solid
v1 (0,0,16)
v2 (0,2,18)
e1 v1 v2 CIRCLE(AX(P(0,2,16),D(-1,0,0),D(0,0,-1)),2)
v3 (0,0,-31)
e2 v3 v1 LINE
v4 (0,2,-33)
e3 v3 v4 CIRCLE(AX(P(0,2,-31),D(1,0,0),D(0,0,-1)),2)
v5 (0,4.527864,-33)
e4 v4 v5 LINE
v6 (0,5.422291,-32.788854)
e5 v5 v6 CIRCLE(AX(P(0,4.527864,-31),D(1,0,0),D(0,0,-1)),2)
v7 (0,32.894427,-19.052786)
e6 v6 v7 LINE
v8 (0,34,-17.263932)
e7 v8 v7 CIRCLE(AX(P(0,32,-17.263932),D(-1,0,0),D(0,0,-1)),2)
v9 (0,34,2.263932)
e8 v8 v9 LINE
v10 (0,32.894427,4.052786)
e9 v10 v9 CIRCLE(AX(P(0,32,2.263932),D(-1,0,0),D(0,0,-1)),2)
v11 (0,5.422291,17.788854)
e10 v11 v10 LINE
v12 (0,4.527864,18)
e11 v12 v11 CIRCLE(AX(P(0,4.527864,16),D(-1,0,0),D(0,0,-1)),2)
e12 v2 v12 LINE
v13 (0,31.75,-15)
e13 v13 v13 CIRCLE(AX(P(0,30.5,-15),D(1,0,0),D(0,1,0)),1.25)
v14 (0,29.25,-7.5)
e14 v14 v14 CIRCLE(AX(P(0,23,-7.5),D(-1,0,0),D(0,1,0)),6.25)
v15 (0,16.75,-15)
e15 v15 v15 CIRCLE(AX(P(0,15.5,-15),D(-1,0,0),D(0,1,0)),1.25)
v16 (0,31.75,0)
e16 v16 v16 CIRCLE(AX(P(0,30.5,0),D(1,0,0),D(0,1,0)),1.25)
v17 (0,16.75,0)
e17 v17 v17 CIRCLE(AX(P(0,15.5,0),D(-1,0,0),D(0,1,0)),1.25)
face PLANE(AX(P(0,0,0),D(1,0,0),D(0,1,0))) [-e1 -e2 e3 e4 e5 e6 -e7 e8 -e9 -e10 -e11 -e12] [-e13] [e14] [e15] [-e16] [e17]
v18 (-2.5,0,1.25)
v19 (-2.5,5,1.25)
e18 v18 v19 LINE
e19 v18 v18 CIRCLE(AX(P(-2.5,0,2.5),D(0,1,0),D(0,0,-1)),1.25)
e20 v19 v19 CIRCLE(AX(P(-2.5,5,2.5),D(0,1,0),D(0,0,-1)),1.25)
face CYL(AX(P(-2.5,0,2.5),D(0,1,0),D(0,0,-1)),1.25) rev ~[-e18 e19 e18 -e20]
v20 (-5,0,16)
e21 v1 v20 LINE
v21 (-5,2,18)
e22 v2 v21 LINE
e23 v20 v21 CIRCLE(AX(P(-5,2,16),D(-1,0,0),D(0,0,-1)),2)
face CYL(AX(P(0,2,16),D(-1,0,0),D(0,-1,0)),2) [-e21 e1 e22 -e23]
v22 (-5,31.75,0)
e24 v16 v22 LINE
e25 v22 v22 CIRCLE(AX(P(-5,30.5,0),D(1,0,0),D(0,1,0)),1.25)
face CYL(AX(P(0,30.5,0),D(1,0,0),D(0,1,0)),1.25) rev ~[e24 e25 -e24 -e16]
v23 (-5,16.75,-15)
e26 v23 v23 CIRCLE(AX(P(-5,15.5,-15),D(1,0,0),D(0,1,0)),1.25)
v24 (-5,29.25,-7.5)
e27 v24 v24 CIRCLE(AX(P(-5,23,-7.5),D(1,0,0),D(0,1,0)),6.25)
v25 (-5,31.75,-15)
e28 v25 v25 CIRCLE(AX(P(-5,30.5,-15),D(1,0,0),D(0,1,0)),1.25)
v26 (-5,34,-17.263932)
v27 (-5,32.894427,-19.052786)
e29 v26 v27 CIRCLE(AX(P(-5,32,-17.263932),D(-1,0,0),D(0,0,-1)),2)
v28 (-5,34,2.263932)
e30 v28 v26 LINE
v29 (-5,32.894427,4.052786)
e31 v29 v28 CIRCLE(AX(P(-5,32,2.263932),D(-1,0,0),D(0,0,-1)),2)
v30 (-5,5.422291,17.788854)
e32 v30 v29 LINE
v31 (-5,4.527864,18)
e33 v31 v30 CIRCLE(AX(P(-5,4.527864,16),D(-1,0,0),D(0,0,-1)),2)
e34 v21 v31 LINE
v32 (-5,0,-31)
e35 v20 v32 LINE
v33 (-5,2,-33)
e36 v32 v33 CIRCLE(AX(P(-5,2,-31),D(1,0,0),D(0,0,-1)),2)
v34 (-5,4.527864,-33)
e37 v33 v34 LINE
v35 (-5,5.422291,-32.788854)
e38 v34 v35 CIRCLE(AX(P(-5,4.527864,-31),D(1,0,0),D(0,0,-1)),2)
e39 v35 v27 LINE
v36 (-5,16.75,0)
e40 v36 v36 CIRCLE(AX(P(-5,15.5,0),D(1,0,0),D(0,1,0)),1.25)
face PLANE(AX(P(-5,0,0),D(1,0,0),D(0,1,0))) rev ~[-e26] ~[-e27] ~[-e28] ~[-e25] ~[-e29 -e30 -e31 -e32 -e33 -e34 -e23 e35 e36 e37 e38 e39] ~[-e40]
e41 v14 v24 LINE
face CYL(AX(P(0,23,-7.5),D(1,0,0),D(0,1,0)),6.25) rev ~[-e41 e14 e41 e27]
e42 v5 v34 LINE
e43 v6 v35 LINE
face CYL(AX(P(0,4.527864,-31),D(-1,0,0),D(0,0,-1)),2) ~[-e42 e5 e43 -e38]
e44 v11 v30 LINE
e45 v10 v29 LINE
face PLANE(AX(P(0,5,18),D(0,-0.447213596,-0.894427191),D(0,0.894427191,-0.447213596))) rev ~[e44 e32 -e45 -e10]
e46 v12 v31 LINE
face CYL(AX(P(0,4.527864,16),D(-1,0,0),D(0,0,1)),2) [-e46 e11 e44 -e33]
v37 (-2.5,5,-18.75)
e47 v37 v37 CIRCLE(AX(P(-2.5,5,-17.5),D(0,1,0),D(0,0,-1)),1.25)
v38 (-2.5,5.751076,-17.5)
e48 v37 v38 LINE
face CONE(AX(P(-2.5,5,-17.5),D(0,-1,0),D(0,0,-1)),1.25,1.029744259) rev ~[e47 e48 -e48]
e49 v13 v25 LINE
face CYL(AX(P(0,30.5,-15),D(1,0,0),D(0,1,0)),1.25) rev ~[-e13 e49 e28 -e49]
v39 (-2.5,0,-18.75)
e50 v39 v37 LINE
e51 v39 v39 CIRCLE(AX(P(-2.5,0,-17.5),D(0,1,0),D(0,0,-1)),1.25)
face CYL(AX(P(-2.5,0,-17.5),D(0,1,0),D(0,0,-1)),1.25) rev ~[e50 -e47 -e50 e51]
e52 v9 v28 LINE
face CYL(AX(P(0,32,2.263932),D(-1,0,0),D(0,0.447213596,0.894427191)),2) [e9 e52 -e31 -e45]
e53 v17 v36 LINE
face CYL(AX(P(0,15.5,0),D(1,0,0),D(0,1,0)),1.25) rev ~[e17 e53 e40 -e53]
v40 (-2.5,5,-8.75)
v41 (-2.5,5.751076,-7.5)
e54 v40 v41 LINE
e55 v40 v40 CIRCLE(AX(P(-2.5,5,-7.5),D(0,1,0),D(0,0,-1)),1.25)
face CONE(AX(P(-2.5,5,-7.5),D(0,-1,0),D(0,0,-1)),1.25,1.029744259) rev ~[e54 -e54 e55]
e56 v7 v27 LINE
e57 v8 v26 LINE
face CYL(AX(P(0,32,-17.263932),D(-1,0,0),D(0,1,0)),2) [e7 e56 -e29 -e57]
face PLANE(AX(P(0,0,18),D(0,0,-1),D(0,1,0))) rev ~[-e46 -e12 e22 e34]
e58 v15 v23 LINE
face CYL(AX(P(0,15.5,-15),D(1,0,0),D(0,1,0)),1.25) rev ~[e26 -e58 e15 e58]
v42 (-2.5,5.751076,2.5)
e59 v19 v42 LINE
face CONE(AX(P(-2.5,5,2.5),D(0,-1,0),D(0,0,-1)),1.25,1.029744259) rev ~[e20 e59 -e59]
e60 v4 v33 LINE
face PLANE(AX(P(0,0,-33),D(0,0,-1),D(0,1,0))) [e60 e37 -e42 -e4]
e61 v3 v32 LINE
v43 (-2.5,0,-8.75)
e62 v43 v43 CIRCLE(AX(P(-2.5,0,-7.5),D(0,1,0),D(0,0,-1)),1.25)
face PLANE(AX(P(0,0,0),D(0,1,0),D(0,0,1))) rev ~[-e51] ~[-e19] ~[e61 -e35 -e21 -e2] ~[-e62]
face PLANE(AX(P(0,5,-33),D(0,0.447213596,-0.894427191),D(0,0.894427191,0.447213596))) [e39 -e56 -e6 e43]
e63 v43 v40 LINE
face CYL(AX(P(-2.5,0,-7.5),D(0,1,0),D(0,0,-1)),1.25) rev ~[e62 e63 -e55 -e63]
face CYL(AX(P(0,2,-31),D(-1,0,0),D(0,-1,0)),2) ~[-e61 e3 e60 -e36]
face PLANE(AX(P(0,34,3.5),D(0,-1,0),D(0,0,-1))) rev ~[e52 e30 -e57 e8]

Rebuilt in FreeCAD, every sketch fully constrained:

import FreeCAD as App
import Part
import Sketcher
Q = App.Units.Quantity


def edges_at(feature, points):
    """Names of the edges that pass closest to the given points."""
    edges = feature.Shape.Edges
    near = lambda p: min(range(len(edges)), key=lambda i: edges[i].distToShape(Part.Vertex(*p))[0])
    return sorted({f"Edge{near(p) + 1}" for p in points})


def add_polygon(sketch, points):
    """Adds a closed chain of lines whose ends are joined by coincident constraints."""
    first, n = sketch.GeometryCount, len(points)
    for a, b in zip(points, points[1:] + points[:1]):
        sketch.addGeometry(Part.LineSegment(App.Vector(*a, 0), App.Vector(*b, 0)), False)
    for i in range(n):
        sketch.addConstraint(Sketcher.Constraint("Coincident", first + i, 2, first + (i + 1) % n, 1))

doc = App.newDocument("Part")
body = doc.addObject("PartDesign::Body", "Body")

# Sketch on YZ plane
sketch1 = doc.addObject("Sketcher::SketchObject", "Sketch")
body.addObject(sketch1)
sketch1.AttachmentSupport = (doc.YZ_Plane, [""])
sketch1.MapMode = "FlatFace"
add_polygon(sketch1, [(0, 18), (0, -33), (5, -33), (34, -18.5), (34, 3.5), (5, 18)])  # lines 0-5
sketch1.addGeometry(Part.Circle(App.Vector(23, -7.5, 0), App.Vector(0, 0, 1), 6.2), False)  # 6
sketch1.addGeometry(Part.Circle(App.Vector(30.5, 0, 0), App.Vector(0, 0, 1), 1.2), False)  # 7
sketch1.addGeometry(Part.Circle(App.Vector(15.5, 0, 0), App.Vector(0, 0, 1), 1.2), False)  # 8
sketch1.addGeometry(Part.Circle(App.Vector(30.5, -15, 0), App.Vector(0, 0, 1), 1.2), False)  # 9
sketch1.addGeometry(Part.Circle(App.Vector(15.5, -15, 0), App.Vector(0, 0, 1), 1.2), False)  # 10
sketch1.addConstraint([
    Sketcher.Constraint("Vertical", 0),
    Sketcher.Constraint("Horizontal", 1),
    Sketcher.Constraint("Vertical", 3),
    Sketcher.Constraint("Horizontal", 5),
    Sketcher.Constraint("Equal", 7, 8),
    Sketcher.Constraint("Equal", 8, 9),
    Sketcher.Constraint("Equal", 9, 10),
    Sketcher.Constraint("PointOnObject", 7, 3, -1),
    Sketcher.Constraint("PointOnObject", 8, 3, -1),
    Sketcher.Constraint("PointOnObject", 0, 2, -2),
    Sketcher.Constraint("Horizontal", 9, 3, 10, 3),
    Sketcher.Constraint("Vertical", 7, 3, 9, 3),
    Sketcher.Constraint("Vertical", 8, 3, 10, 3),
    Sketcher.Constraint("Vertical", 1, 2, 4, 2),
    Sketcher.Constraint("Equal", 2, 4),
    Sketcher.Constraint("Diameter", 6, Q("12.5 mm")),
    Sketcher.Constraint("Diameter", 7, Q("2.5 mm")),
    Sketcher.Constraint("DistanceX", 1, 1, 1, 2, Q("5 mm")),
    Sketcher.Constraint("DistanceY", 0, 2, 0, 1, Q("51 mm")),
    Sketcher.Constraint("DistanceY", 3, 1, 3, 2, Q("22 mm")),
    Sketcher.Constraint("DistanceY", 9, 3, -1, 1, Q("15 mm")),
    Sketcher.Constraint("DistanceY", -1, 1, 4, 2, Q("18 mm")),
    Sketcher.Constraint("DistanceX", 8, 3, 7, 3, Q("15 mm")),
    Sketcher.Constraint("DistanceX", 1, 2, 6, 3, Q("18 mm")),
    Sketcher.Constraint("DistanceX", 9, 3, 2, 2, Q("3.5 mm")),
    Sketcher.Constraint("DistanceX", -1, 1, 2, 2, Q("34 mm")),
    Sketcher.Constraint("DistanceY", 2, 2, 6, 3, Q("11 mm")),
])
pad1 = doc.addObject("PartDesign::Pad", "Pad")
body.addObject(pad1)
pad1.Profile = sketch1
pad1.Length = 5
pad1.Reversed = True
doc.recompute()

fillet = doc.addObject("PartDesign::Fillet", "Fillet")
body.addObject(fillet)
fillet.Base = (pad1, edges_at(pad1, [
    (-2.5, 0, -33),
    (-2.5, 5, -33),
    (-2.5, 34, -18.5),
    (-2.5, 34, 3.5),
    (-2.5, 0, 18),
    (-2.5, 5, 18),
]))
fillet.Radius = 2

# Sketch on XZ plane
sketch2 = doc.addObject("Sketcher::SketchObject", "Sketch001")
body.addObject(sketch2)
sketch2.AttachmentSupport = (doc.XZ_Plane, [""])
sketch2.MapMode = "FlatFace"
sketch2.addGeometry([
    Part.Circle(App.Vector(-2.5, 2.5, 0), App.Vector(0, 0, 1), 1.2),
    Part.Circle(App.Vector(-2.5, -7.5, 0), App.Vector(0, 0, 1), 1.2),
    Part.Circle(App.Vector(-2.5, -17.5, 0), App.Vector(0, 0, 1), 1.2),
], False)
sketch2.addConstraint([
    Sketcher.Constraint("Equal", 0, 1),
    Sketcher.Constraint("Equal", 1, 2),
    Sketcher.Constraint("Vertical", 0, 3, 1, 3),
    Sketcher.Constraint("Vertical", 1, 3, 2, 3),
    Sketcher.Constraint("Diameter", 0, Q("2.5 mm")),
    Sketcher.Constraint("DistanceY", 1, 3, 0, 3, Q("10 mm")),
    Sketcher.Constraint("DistanceY", 2, 3, 1, 3, Q("10 mm")),
    Sketcher.Constraint("DistanceX", 0, 3, -1, 1, Q("2.5 mm")),
    Sketcher.Constraint("DistanceY", -1, 1, 0, 3, Q("2.5 mm")),
])
doc.recompute()
hole = doc.addObject("PartDesign::Hole", "Hole")
body.addObject(hole)
hole.Profile = sketch2
hole.ThreadType = "None"
hole.Diameter = 2.5
hole.DepthType = "Dimension"
hole.Depth = 5
hole.DrillPoint = "Angled"
hole.DrillPointAngle = 118

doc.recompute()
